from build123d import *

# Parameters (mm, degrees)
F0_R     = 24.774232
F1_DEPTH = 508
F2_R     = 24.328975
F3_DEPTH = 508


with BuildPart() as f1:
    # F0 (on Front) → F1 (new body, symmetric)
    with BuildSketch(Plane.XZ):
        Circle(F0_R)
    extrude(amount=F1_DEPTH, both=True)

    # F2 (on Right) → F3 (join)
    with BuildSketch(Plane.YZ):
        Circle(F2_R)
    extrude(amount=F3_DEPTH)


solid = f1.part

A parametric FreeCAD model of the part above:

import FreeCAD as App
import Part
import Sketcher

V = App.Vector
Q = App.Units.Quantity

doc = App.newDocument("Part")
body = doc.addObject("PartDesign::Body", "Body")

# Sketch on XZ plane
sketch1 = body.newObject("Sketcher::SketchObject", "Sketch")
sketch1.AttachmentSupport = (doc.getObject("XZ_Plane"), [""])
sketch1.MapMode = "FlatFace"
sketch1.addGeometry(Part.Circle(V(0, 0, 0), V(0, 0, 1), 25), False)
sketch1.addConstraint(Sketcher.Constraint("Coincident", 0, 3, -1, 1))
sketch1.addConstraint(Sketcher.Constraint("Diameter", 0, 49.548464))
pad1 = body.newObject("PartDesign::Pad", "Pad")
pad1.Profile = sketch1
pad1.Length = Q("40 in")
pad1.Midplane = True

# Sketch on YZ plane
sketch2 = body.newObject("Sketcher::SketchObject", "Sketch001")
sketch2.AttachmentSupport = (doc.getObject("YZ_Plane"), [""])
sketch2.MapMode = "FlatFace"
sketch2.addGeometry(Part.Circle(V(0, 0, 0), V(0, 0, 1), 24), False)
sketch2.addConstraint(Sketcher.Constraint("Coincident", 0, 3, -1, 1))
sketch2.addConstraint(Sketcher.Constraint("Diameter", 0, 48.65795))
pad2 = body.newObject("PartDesign::Pad", "Pad001")
pad2.Profile = sketch2
pad2.Length = Q("20 in")

doc.recompute()
